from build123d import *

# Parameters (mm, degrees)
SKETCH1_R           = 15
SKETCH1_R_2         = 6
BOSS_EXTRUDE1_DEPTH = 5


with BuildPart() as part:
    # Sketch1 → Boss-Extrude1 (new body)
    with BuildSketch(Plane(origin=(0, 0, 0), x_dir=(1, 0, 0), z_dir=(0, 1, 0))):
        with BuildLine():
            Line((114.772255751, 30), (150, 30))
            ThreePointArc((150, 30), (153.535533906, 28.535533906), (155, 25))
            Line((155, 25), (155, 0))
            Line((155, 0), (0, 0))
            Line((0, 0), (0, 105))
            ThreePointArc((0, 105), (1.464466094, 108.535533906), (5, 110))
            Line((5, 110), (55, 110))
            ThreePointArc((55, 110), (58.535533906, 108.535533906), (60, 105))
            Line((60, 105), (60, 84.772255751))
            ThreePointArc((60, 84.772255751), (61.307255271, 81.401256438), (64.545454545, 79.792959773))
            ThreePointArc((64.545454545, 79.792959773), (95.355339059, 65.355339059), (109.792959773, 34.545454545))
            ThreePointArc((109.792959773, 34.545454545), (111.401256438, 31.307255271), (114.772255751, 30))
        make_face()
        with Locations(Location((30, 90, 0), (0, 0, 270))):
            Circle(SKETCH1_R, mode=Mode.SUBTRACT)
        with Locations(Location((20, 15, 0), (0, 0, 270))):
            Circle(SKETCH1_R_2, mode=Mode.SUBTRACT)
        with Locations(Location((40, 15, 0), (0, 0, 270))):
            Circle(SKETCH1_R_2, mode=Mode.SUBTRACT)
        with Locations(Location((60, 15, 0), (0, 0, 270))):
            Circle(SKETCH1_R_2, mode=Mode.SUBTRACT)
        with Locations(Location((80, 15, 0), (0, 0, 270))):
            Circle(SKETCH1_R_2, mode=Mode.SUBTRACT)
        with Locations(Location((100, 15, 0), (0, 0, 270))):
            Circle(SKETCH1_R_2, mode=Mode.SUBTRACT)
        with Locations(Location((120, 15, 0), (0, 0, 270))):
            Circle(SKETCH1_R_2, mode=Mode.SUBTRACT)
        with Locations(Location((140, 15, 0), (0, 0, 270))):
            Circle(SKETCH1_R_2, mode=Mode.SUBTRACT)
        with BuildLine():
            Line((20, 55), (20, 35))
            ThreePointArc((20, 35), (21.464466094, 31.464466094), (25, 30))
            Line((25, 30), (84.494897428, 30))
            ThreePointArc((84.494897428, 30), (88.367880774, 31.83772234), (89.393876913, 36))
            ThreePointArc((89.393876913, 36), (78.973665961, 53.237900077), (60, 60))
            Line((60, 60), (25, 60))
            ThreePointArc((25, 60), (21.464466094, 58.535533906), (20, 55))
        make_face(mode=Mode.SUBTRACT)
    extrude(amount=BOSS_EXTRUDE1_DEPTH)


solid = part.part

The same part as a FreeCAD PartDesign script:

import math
import FreeCAD as App
import Part
import Sketcher
Q = App.Units.Quantity

doc = App.newDocument("Part")
body = doc.addObject("PartDesign::Body", "Body")

# Sketch on XZ plane
sketch1 = doc.addObject("Sketcher::SketchObject", "Sketch")
body.addObject(sketch1)
sketch1.AttachmentSupport = (doc.XZ_Plane, [""])
sketch1.MapMode = "FlatFace"
sketch1.addGeometry([
    Part.LineSegment(App.Vector(150, -30, 0), App.Vector(115, -30, 0)),  # 0
    Part.ArcOfCircle(Part.Circle(App.Vector(115, -35, 0), App.Vector(0, 0, 1), 5), math.radians(90), math.radians(175)),  # 1
    Part.ArcOfCircle(Part.Circle(App.Vector(60, -30, 0), App.Vector(0, 0, 1), 50), math.radians(-85), math.radians(-5)),  # 2
    Part.ArcOfCircle(Part.Circle(App.Vector(65, -85, 0), App.Vector(0, 0, 1), 5), math.radians(95), math.radians(180)),  # 3
    Part.LineSegment(App.Vector(60, -85, 0), App.Vector(60, -105, 0)),  # 4
    Part.ArcOfCircle(Part.Circle(App.Vector(55, -105, 0), App.Vector(0, 0, 1), 5), math.radians(-90), math.radians(0)),  # 5
    Part.LineSegment(App.Vector(55, -110, 0), App.Vector(5, -110, 0)),  # 6
    Part.ArcOfCircle(Part.Circle(App.Vector(5, -105, 0), App.Vector(0, 0, 1), 5), math.radians(180), math.radians(270)),  # 7
    Part.LineSegment(App.Vector(0, -105, 0), App.Vector(0, 0, 0)),  # 8
    Part.LineSegment(App.Vector(0, 0, 0), App.Vector(155, 0, 0)),  # 9
    Part.LineSegment(App.Vector(155, 0, 0), App.Vector(155, -25, 0)),  # 10
    Part.ArcOfCircle(Part.Circle(App.Vector(150, -25, 0), App.Vector(0, 0, 1), 5), math.radians(-90), math.radians(0)),  # 11
    Part.Circle(App.Vector(140, -15, 0), App.Vector(0, 0, 1), 6),  # 12
    Part.Circle(App.Vector(120, -15, 0), App.Vector(0, 0, 1), 6),  # 13
    Part.Circle(App.Vector(100, -15, 0), App.Vector(0, 0, 1), 6),  # 14
    Part.Circle(App.Vector(80, -15, 0), App.Vector(0, 0, 1), 6),  # 15
    Part.Circle(App.Vector(60, -15, 0), App.Vector(0, 0, 1), 6),  # 16
    Part.Circle(App.Vector(40, -15, 0), App.Vector(0, 0, 1), 6),  # 17
    Part.Circle(App.Vector(20, -15, 0), App.Vector(0, 0, 1), 6),  # 18
    Part.ArcOfCircle(Part.Circle(App.Vector(25, -55, 0), App.Vector(0, 0, 1), 5), math.radians(180), math.radians(270)),  # 19
    Part.LineSegment(App.Vector(25, -60, 0), App.Vector(60, -60, 0)),  # 20
    Part.ArcOfCircle(Part.Circle(App.Vector(60, -30, 0), App.Vector(0, 0, 1), 30), math.radians(-90), math.radians(-12)),  # 21
    Part.ArcOfCircle(Part.Circle(App.Vector(84, -35, 0), App.Vector(0, 0, 1), 5), math.radians(-12), math.radians(90)),  # 22
    Part.LineSegment(App.Vector(84, -30, 0), App.Vector(25, -30, 0)),  # 23
    Part.ArcOfCircle(Part.Circle(App.Vector(25, -35, 0), App.Vector(0, 0, 1), 5), math.radians(90), math.radians(180)),  # 24
    Part.LineSegment(App.Vector(20, -35, 0), App.Vector(20, -55, 0)),  # 25
    Part.Circle(App.Vector(30, -90, 0), App.Vector(0, 0, 1), 15),  # 26
], False)
sketch1.addConstraint([
    Sketcher.Constraint("Tangent", 0, 2, 1, 1),
    Sketcher.Constraint("Tangent", 1, 2, 2, 2),
    Sketcher.Constraint("Tangent", 2, 1, 3, 1),
    Sketcher.Constraint("Tangent", 3, 2, 4, 1),
    Sketcher.Constraint("Tangent", 4, 2, 5, 2),
    Sketcher.Constraint("Tangent", 5, 1, 6, 1),
    Sketcher.Constraint("Tangent", 6, 2, 7, 2),
    Sketcher.Constraint("Tangent", 7, 1, 8, 1),
    Sketcher.Constraint("Coincident", 8, 2, 9, 1),
    Sketcher.Constraint("Coincident", 9, 2, 10, 1),
    Sketcher.Constraint("Tangent", 10, 2, 11, 2),
    Sketcher.Constraint("Tangent", 11, 1, 0, 1),
    Sketcher.Constraint("Tangent", 19, 2, 20, 1),
    Sketcher.Constraint("Tangent", 20, 2, 21, 1),
    Sketcher.Constraint("Tangent", 21, 2, 22, 1),
    Sketcher.Constraint("Tangent", 22, 2, 23, 1),
    Sketcher.Constraint("Tangent", 23, 2, 24, 1),
    Sketcher.Constraint("Tangent", 24, 2, 25, 1),
    Sketcher.Constraint("Tangent", 25, 2, 19, 1),
    Sketcher.Constraint("Horizontal", 0),
    Sketcher.Constraint("Vertical", 4),
    Sketcher.Constraint("Horizontal", 6),
    Sketcher.Constraint("Vertical", 8),
    Sketcher.Constraint("Horizontal", 9),
    Sketcher.Constraint("Vertical", 10),
    Sketcher.Constraint("Horizontal", 20),
    Sketcher.Constraint("Horizontal", 23),
    Sketcher.Constraint("Vertical", 25),
    Sketcher.Constraint("Coincident", 8, 2, -1, 1),
    Sketcher.Constraint("Coincident", 21, 3, 2, 3),
    Sketcher.Constraint("Equal", 1, 3),
    Sketcher.Constraint("Equal", 3, 5),
    Sketcher.Constraint("Equal", 5, 7),
    Sketcher.Constraint("Equal", 7, 11),
    Sketcher.Constraint("Equal", 12, 13),
    Sketcher.Constraint("Equal", 13, 14),
    Sketcher.Constraint("Equal", 14, 15),
    Sketcher.Constraint("Equal", 15, 16),
    Sketcher.Constraint("Equal", 16, 17),
    Sketcher.Constraint("Equal", 17, 18),
    Sketcher.Constraint("Equal", 11, 19),
    Sketcher.Constraint("Equal", 19, 22),
    Sketcher.Constraint("Equal", 22, 24),
    Sketcher.Constraint("Horizontal", 12, 3, 13, 3),
    Sketcher.Constraint("Horizontal", 13, 3, 14, 3),
    Sketcher.Constraint("Horizontal", 14, 3, 15, 3),
    Sketcher.Constraint("Horizontal", 15, 3, 16, 3),
    Sketcher.Constraint("Horizontal", 16, 3, 17, 3),
    Sketcher.Constraint("Horizontal", 17, 3, 18, 3),
    Sketcher.Constraint("Horizontal", 1, 3, 22, 3),
    Sketcher.Constraint("Horizontal", 21, 3, 0, 2),
    Sketcher.Constraint("Vertical", 2, 3, 16, 3),
    Sketcher.Constraint("Vertical", 21, 3, 3, 2),
    Sketcher.Constraint("Vertical", 18, 3, 24, 2),
    Sketcher.Constraint("Diameter", 12, Q("12 mm")),
    Sketcher.Constraint("Diameter", 26, Q("30 mm")),
    Sketcher.Constraint("Radius", 1, Q("5 mm")),
    Sketcher.Constraint("Radius", 2, Q("50 mm")),
    Sketcher.Constraint("Radius", 21, Q("30 mm")),
    Sketcher.Constraint("DistanceX", 6, 2, 6, 1, Q("50 mm")),
    Sketcher.Constraint("DistanceX", 9, 1, 9, 2, Q("155 mm")),
    Sketcher.Constraint("DistanceX", 20, 1, 20, 2, Q("35 mm")),
    Sketcher.Constraint("DistanceY", 8, 1, 8, 2, Q("105 mm")),
    Sketcher.Constraint("DistanceY", 10, 2, 10, 1, Q("25 mm")),
    Sketcher.Constraint("DistanceX", -1, 1, 12, 3, Q("140 mm")),
    Sketcher.Constraint("DistanceY", 12, 3, -1, 1, Q("15 mm")),
    Sketcher.Constraint("DistanceX", -1, 1, 13, 3, Q("120 mm")),
    Sketcher.Constraint("DistanceX", -1, 1, 14, 3, Q("100 mm")),
    Sketcher.Constraint("DistanceX", -1, 1, 15, 3, Q("80 mm")),
    Sketcher.Constraint("DistanceX", -1, 1, 17, 3, Q("40 mm")),
    Sketcher.Constraint("DistanceX", -1, 1, 26, 3, Q("30 mm")),
    Sketcher.Constraint("DistanceY", 26, 3, -1, 1, Q("90 mm")),
])
pad1 = doc.addObject("PartDesign::Pad", "Pad")
body.addObject(pad1)
pad1.Profile = sketch1
pad1.Length = 5
pad1.Reversed = True

doc.recompute()
